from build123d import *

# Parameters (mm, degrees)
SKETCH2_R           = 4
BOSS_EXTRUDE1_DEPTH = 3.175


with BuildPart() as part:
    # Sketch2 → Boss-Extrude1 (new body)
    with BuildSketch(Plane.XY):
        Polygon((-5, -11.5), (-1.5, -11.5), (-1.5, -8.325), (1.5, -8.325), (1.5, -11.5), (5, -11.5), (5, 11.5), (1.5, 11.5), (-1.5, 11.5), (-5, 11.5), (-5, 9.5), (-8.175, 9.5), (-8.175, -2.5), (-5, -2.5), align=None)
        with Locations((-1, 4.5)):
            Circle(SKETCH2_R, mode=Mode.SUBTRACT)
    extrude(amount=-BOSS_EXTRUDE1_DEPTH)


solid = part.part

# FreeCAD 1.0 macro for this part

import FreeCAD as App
import Part
import Sketcher
from FreeCAD import Vector


def add_polygon(sketch, points):
    """Adds a closed chain of lines whose ends are joined by coincident constraints."""
    first, n = sketch.GeometryCount, len(points)
    for a, b in zip(points, points[1:] + points[:1]):
        sketch.addGeometry(Part.LineSegment(App.Vector(*a, 0), App.Vector(*b, 0)), False)
    for i in range(n):
        sketch.addConstraint(Sketcher.Constraint("Coincident", first + i, 2, first + (i + 1) % n, 1))

doc = App.newDocument("Part")
body = doc.addObject("PartDesign::Body", "Body")

sketch1 = doc.addObject("Sketcher::SketchObject", "Sketch")
body.addObject(sketch1)
sketch1.AttachmentSupport = (doc.XY_Plane, [""])
sketch1.MapMode = "FlatFace"
add_polygon(sketch1, [(-5, -11.5), (-1.5, -11.5), (-1.5, -8.3), (1.5, -8.3), (1.5, -11.5), (5, -11.5), (5, 11.5), (-5, 11.5), (-5, 9.5), (-8.2, 9.5), (-8.2, -2.5), (-5, -2.5)])
sketch1.addGeometry(Part.Circle(Vector(-1, 4.5, 0), Vector(0, 0, 1), 4), False)
sketch1.addConstraint([
    Sketcher.Constraint("Horizontal", 0),
    Sketcher.Constraint("Vertical", 1),
    Sketcher.Constraint("Horizontal", 2),
    Sketcher.Constraint("Vertical", 3),
    Sketcher.Constraint("Horizontal", 4),
    Sketcher.Constraint("Vertical", 5),
    Sketcher.Constraint("Horizontal", 6),
    Sketcher.Constraint("Vertical", 7),
    Sketcher.Constraint("Horizontal", 8),
    Sketcher.Constraint("Vertical", 9),
    Sketcher.Constraint("Horizontal", 10),
    Sketcher.Constraint("Vertical", 11),
    Sketcher.Constraint("Symmetric", 4, 2, 6, 2, -1, 1),
    Sketcher.Constraint("Symmetric", 5, 2, 11, 2, -1, 1),
    Sketcher.Constraint("Equal", 0, 4),
    Sketcher.Constraint("Equal", 10, 1),
    Sketcher.Constraint("Diameter", 12, 8.0),
    Sketcher.Constraint("DistanceX", 2, 1, 2, 2, 3.0),
    Sketcher.Constraint("DistanceX", 6, 2, 6, 1, 10.0),
    Sketcher.Constraint("DistanceY", 5, 1, 5, 2, 23.0),
    Sketcher.Constraint("DistanceY", 7, 2, 7, 1, 2.0),
    Sketcher.Constraint("DistanceY", 9, 2, 9, 1, 12.0),
    Sketcher.Constraint("DistanceX", 12, 3, -1, 1, 1.0),
    Sketcher.Constraint("DistanceY", 0, 2, 12, 3, 16.0),
    Sketcher.Constraint("DistanceX", 8, 2, 8, 1, 3.175),
])
pad1 = doc.addObject("PartDesign::Pad", "Pad")
body.addObject(pad1)
pad1.Profile = sketch1
pad1.Length = 3.175
pad1.Reversed = True

doc.recompute()
